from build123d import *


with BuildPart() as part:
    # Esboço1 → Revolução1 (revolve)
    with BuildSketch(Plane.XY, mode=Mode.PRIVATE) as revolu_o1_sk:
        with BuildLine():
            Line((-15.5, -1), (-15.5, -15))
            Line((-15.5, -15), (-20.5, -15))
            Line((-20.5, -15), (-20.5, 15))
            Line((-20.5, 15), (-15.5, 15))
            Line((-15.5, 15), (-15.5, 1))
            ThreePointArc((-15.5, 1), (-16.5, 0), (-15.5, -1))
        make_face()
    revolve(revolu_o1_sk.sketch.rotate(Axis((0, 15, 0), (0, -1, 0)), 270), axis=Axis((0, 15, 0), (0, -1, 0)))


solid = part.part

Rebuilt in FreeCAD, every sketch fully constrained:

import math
import FreeCAD as App
import Part
import Sketcher
from FreeCAD import Vector
Q = App.Units.Quantity

doc = App.newDocument("Part")
params = doc.addObject("Spreadsheet::Sheet", "Params")
for row, (alias, value) in enumerate([
    ("sketch1_radius", "1 mm"),
    ("sketch1_width", "5 mm"),
    ("sketch1_height", "14 mm"),
    ("revolution_angle", "360 deg"),
], start=1):
    params.set(f"A{row}", alias)
    params.set(f"B{row}", "=" + value)
    params.setAlias(f"B{row}", alias)

body = doc.addObject("PartDesign::Body", "Body")

# Sketch on XY plane
sketch1 = body.newObject("Sketcher::SketchObject", "Sketch")
sketch1.AttachmentSupport = (doc.getObject("XY_Plane"), [""])
sketch1.MapMode = "FlatFace"
sketch1.addGeometry(Part.LineSegment(Vector(-15.5, -15, 0), Vector(-15.5, -1, 0)), False)
sketch1.addGeometry(Part.ArcOfCircle(Part.Circle(Vector(-15.5, 0, 0), Vector(0, 0, 1), 1), math.radians(90), math.radians(270)), False)
sketch1.addGeometry(Part.LineSegment(Vector(-15.5, 1, 0), Vector(-15.5, 15, 0)), False)
sketch1.addGeometry(Part.LineSegment(Vector(-15.5, 15, 0), Vector(-20.5, 15, 0)), False)
sketch1.addGeometry(Part.LineSegment(Vector(-20.5, 15, 0), Vector(-20.5, -15, 0)), False)
sketch1.addGeometry(Part.LineSegment(Vector(-20.5, -15, 0), Vector(-15.5, -15, 0)), False)
sketch1.addConstraint(Sketcher.Constraint("Coincident", 0, 2, 1, 2))
sketch1.addConstraint(Sketcher.Constraint("Coincident", 1, 1, 2, 1))
sketch1.addConstraint(Sketcher.Constraint("Coincident", 2, 2, 3, 1))
sketch1.addConstraint(Sketcher.Constraint("Coincident", 3, 2, 4, 1))
sketch1.addConstraint(Sketcher.Constraint("Coincident", 4, 2, 5, 1))
sketch1.addConstraint(Sketcher.Constraint("Coincident", 5, 2, 0, 1))
sketch1.addConstraint(Sketcher.Constraint("Vertical", 0))
sketch1.addConstraint(Sketcher.Constraint("Vertical", 2))
sketch1.addConstraint(Sketcher.Constraint("Horizontal", 3))
sketch1.addConstraint(Sketcher.Constraint("Vertical", 4))
sketch1.addConstraint(Sketcher.Constraint("Horizontal", 5))
sketch1.addConstraint(Sketcher.Constraint("Symmetric", 0, 2, 1, 1, -1))
sketch1.addConstraint(Sketcher.Constraint("Vertical", 1, 3, 0, 2))
sketch1.addConstraint(Sketcher.Constraint("Equal", 0, 2))
sketch1.addConstraint(Sketcher.Constraint("Radius", 1, Q("1 mm")))
sketch1.addConstraint(Sketcher.Constraint("DistanceX", 3, 2, 3, 1, Q("5 mm")))
sketch1.addConstraint(Sketcher.Constraint("DistanceY", 0, 1, 0, 2, Q("14 mm")))
sketch1.addConstraint(Sketcher.Constraint("DistanceX", 1, 3, -1, 1, Q("15.5 mm")))
sketch1.setExpression("Constraints[14]", "Params.sketch1_radius")
sketch1.setExpression("Constraints[15]", "Params.sketch1_width")
sketch1.setExpression("Constraints[16]", "Params.sketch1_height")
revolution = body.newObject("PartDesign::Revolution", "Revolution")
revolution.Profile = sketch1
revolution.ReferenceAxis = (sketch1, ["V_Axis"])
revolution.setExpression("Angle", "Params.revolution_angle")

doc.recompute()
